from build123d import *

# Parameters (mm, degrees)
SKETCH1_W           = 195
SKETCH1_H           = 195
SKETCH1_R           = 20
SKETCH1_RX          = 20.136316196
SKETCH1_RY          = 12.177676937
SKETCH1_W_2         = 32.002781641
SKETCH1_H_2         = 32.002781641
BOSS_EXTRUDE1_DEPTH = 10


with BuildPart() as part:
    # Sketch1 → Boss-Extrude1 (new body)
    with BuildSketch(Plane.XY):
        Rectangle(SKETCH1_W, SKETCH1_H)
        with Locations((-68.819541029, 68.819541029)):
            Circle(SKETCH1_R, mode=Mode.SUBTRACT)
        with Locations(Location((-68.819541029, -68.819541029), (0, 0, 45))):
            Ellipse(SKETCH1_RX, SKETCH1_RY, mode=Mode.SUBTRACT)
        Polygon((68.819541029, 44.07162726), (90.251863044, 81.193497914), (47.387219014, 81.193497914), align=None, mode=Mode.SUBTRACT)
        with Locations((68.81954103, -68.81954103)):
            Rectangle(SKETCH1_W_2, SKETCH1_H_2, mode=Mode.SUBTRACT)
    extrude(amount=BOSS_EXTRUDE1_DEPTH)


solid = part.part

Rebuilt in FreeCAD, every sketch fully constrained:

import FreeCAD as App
import Part
import Sketcher

V = App.Vector
Q = App.Units.Quantity


def add_polygon(sketch, points):
    """Adds a closed chain of lines whose ends are joined by coincident constraints."""
    first, n = sketch.GeometryCount, len(points)
    for a, b in zip(points, points[1:] + points[:1]):
        sketch.addGeometry(Part.LineSegment(App.Vector(*a, 0), App.Vector(*b, 0)), False)
    for i in range(n):
        sketch.addConstraint(Sketcher.Constraint("Coincident", first + i, 2, first + (i + 1) % n, 1))

doc = App.newDocument("Part")
body = doc.addObject("PartDesign::Body", "Body")

# Sketch on XY plane
sketch1 = body.newObject("Sketcher::SketchObject", "Sketch")
sketch1.AttachmentSupport = (doc.getObject("XY_Plane"), [""])
sketch1.MapMode = "FlatFace"
add_polygon(sketch1, [(-97.5, 97.5), (-97.5, -97.5), (97.5, -97.5), (97.5, 97.5)])  # lines 0-3
sketch1.addGeometry(Part.Ellipse(V(-54.581015, -54.581015, 0), V(-77.430459, -60.208623, 0), V(-68.819541, -68.819541, 0)), False)  # 4
add_polygon(sketch1, [(84.820932, -84.820932), (52.81815, -84.820932), (52.81815, -52.81815), (84.820932, -52.81815)])  # lines 5-8
sketch1.addGeometry(Part.Circle(V(-68.819541, 68.819541, 0), V(0, 0, 1), 20), False)  # 9
add_polygon(sketch1, [(90.251863, 81.193498), (68.819541, 44.071627), (47.387219, 81.193498)])  # lines 10-12
sketch1.addConstraint(Sketcher.Constraint("Block", 4))
sketch1.addConstraint(Sketcher.Constraint("Vertical", 0))
sketch1.addConstraint(Sketcher.Constraint("Horizontal", 1))
sketch1.addConstraint(Sketcher.Constraint("Vertical", 2))
sketch1.addConstraint(Sketcher.Constraint("Horizontal", 3))
sketch1.addConstraint(Sketcher.Constraint("Horizontal", 5))
sketch1.addConstraint(Sketcher.Constraint("Vertical", 6))
sketch1.addConstraint(Sketcher.Constraint("Horizontal", 7))
sketch1.addConstraint(Sketcher.Constraint("Vertical", 8))
sketch1.addConstraint(Sketcher.Constraint("Horizontal", 12))
sketch1.addConstraint(Sketcher.Constraint("Symmetric", 0, 2, 2, 2, -1, 1))
sketch1.addConstraint(Sketcher.Constraint("Equal", 3, 0))
sketch1.addConstraint(Sketcher.Constraint("Equal", 7, 6))
sketch1.addConstraint(Sketcher.Constraint("Equal", 10, 11))
sketch1.addConstraint(Sketcher.Constraint("Diameter", 9, 40.0))
sketch1.addConstraint(Sketcher.Constraint("DistanceX", 1, 1, 1, 2, 195.0))
sketch1.addConstraint(Sketcher.Constraint("Angle", 10, Q("-120 deg")))
sketch1.addConstraint(Sketcher.Constraint("DistanceX", 5, 2, 5, 1, 32.002782))
sketch1.addConstraint(Sketcher.Constraint("DistanceX", 12, 1, 12, 2, 42.864644))
sketch1.addConstraint(Sketcher.Constraint("DistanceX", 9, 3, -1, 1, 68.819541))
sketch1.addConstraint(Sketcher.Constraint("DistanceY", -1, 1, 9, 3, 68.819541))
sketch1.addConstraint(Sketcher.Constraint("DistanceX", -1, 1, 5, 2, 52.81815))
sketch1.addConstraint(Sketcher.Constraint("DistanceY", 5, 2, -1, 1, 84.820932))
sketch1.addConstraint(Sketcher.Constraint("DistanceX", -1, 1, 10, 2, 68.819541))
sketch1.addConstraint(Sketcher.Constraint("DistanceY", 5, 2, 10, 2, 128.892559))
pad1 = body.newObject("PartDesign::Pad", "Pad")
pad1.Profile = sketch1
pad1.Length = 10

doc.recompute()
